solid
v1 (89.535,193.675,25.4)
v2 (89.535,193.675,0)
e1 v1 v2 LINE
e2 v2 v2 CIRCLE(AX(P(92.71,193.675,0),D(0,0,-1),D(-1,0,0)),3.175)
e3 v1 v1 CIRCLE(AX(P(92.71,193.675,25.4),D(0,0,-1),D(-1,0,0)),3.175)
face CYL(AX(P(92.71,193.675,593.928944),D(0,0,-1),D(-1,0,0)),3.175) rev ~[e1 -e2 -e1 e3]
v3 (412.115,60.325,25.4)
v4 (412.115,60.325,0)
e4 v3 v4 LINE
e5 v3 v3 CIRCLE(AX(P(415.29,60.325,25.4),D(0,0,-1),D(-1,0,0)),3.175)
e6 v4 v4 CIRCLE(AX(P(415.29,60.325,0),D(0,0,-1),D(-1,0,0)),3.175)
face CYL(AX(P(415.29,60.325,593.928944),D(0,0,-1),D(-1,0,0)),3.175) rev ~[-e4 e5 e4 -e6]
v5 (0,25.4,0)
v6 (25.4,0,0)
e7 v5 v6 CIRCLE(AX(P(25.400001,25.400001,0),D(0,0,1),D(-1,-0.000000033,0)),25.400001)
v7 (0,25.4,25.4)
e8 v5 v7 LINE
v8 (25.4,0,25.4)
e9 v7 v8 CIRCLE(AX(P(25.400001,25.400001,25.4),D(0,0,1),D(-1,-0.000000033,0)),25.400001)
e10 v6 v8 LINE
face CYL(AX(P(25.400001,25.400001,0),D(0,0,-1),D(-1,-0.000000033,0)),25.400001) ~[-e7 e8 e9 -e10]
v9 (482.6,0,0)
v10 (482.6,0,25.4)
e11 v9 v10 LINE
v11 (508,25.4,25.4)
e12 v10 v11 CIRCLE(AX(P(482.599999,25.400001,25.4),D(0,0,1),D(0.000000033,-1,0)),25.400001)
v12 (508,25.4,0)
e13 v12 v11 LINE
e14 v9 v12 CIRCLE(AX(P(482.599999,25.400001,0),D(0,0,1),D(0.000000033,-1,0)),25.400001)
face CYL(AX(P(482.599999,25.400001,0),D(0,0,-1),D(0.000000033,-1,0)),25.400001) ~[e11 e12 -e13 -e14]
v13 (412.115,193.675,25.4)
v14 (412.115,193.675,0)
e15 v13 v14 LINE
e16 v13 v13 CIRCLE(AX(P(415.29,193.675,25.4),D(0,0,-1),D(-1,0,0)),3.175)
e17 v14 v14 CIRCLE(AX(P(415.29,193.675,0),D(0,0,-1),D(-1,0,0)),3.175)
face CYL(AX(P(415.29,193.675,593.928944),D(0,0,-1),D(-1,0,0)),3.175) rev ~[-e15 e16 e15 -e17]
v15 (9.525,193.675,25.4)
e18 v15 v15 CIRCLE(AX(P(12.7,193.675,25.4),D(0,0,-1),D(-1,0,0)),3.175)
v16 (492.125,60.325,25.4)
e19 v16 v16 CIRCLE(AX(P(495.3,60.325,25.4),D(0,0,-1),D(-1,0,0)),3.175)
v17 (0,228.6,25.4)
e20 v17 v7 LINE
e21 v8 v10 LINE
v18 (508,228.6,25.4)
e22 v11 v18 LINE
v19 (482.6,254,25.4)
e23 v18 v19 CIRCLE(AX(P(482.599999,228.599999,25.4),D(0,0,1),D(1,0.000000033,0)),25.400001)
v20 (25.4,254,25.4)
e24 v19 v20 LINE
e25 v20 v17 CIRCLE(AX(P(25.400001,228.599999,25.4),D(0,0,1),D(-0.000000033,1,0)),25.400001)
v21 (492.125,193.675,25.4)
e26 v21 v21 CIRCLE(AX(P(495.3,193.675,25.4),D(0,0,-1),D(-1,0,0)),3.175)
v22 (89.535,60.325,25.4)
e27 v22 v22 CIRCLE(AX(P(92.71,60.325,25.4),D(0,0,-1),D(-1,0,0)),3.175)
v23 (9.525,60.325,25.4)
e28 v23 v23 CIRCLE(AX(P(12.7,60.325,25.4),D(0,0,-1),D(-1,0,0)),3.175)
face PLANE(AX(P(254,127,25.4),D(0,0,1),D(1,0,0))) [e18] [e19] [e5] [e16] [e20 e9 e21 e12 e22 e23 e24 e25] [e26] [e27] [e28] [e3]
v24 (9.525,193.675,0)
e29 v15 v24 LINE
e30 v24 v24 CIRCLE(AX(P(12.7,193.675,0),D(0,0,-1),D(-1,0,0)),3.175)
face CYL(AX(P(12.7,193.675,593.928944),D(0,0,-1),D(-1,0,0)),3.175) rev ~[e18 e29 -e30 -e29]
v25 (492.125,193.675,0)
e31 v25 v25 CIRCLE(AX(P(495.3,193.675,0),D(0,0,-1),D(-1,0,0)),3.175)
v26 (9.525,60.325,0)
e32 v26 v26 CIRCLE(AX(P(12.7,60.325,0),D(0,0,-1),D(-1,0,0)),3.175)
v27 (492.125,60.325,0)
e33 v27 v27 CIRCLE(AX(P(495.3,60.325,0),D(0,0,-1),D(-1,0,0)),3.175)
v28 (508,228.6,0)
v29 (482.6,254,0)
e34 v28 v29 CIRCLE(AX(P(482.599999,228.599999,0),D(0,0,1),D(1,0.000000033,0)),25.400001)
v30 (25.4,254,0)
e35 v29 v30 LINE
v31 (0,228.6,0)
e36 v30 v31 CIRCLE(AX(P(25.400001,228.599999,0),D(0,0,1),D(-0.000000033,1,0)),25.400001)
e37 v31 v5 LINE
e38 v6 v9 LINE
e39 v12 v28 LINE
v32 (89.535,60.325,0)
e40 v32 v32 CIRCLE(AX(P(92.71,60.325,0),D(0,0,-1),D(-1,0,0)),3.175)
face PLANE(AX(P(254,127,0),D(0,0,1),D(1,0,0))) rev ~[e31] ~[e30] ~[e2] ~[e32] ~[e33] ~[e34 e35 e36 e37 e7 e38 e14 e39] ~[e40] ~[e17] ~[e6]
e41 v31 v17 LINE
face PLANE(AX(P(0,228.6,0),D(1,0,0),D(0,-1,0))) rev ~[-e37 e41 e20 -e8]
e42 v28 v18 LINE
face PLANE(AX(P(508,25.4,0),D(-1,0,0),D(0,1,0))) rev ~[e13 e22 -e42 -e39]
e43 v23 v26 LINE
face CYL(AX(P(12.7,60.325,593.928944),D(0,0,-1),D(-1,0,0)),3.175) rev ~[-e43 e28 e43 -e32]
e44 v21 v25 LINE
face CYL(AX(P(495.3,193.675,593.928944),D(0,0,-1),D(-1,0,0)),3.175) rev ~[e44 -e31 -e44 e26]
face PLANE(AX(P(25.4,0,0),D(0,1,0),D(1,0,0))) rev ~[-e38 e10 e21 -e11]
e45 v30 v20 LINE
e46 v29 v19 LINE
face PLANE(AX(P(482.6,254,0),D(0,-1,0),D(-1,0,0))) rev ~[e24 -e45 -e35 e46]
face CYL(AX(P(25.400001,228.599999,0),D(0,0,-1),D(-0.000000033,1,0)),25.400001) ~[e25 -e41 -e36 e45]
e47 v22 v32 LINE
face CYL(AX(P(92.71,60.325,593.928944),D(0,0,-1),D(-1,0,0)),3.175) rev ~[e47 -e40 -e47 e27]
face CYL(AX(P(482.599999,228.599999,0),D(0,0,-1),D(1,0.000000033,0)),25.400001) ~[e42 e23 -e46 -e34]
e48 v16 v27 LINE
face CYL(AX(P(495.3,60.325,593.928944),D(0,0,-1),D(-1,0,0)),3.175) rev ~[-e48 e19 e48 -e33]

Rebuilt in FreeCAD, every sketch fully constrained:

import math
import FreeCAD as App
import Part
import Sketcher

V = App.Vector
Q = App.Units.Quantity

doc = App.newDocument("Part")
body = doc.addObject("PartDesign::Body", "Body")

# Sketch on XY plane
sketch1 = doc.addObject("Sketcher::SketchObject", "Sketch")
body.addObject(sketch1)
sketch1.AttachmentSupport = (doc.XY_Plane, [""])
sketch1.MapMode = "FlatFace"
sketch1.addGeometry(Part.ArcOfCircle(Part.Circle(V(25.400001, 25.400001, 0), V(0, 0, 1), 25.400001), math.radians(-179.999998), math.radians(-90.000002)), False)
sketch1.addGeometry(Part.LineSegment(V(25.4, 0, 0), V(482.6, 0, 0)), False)
sketch1.addGeometry(Part.ArcOfCircle(Part.Circle(V(482.599999, 25.400001, 0), V(0, 0, 1), 25.400001), math.radians(-89.999998), math.radians(-0.000002)), False)
sketch1.addGeometry(Part.LineSegment(V(508, 25.4, 0), V(508, 228.6, 0)), False)
sketch1.addGeometry(Part.ArcOfCircle(Part.Circle(V(482.599999, 228.599999, 0), V(0, 0, 1), 25.400001), math.radians(0.000002), math.radians(89.999998)), False)
sketch1.addGeometry(Part.LineSegment(V(482.6, 254, 0), V(25.4, 254, 0)), False)
sketch1.addGeometry(Part.ArcOfCircle(Part.Circle(V(25.400001, 228.599999, 0), V(0, 0, 1), 25.400001), math.radians(90.000002), math.radians(179.999998)), False)
sketch1.addGeometry(Part.LineSegment(V(0, 228.6, 0), V(0, 25.4, 0)), False)
sketch1.addConstraint(Sketcher.Constraint("Tangent", 0, 2, 1, 1))
sketch1.addConstraint(Sketcher.Constraint("Tangent", 1, 2, 2, 1))
sketch1.addConstraint(Sketcher.Constraint("Tangent", 2, 2, 3, 1))
sketch1.addConstraint(Sketcher.Constraint("Tangent", 3, 2, 4, 1))
sketch1.addConstraint(Sketcher.Constraint("Tangent", 4, 2, 5, 1))
sketch1.addConstraint(Sketcher.Constraint("Tangent", 5, 2, 6, 1))
sketch1.addConstraint(Sketcher.Constraint("Tangent", 6, 2, 7, 1))
sketch1.addConstraint(Sketcher.Constraint("Tangent", 7, 2, 0, 1))
sketch1.addConstraint(Sketcher.Constraint("Horizontal", 1))
sketch1.addConstraint(Sketcher.Constraint("Vertical", 3))
sketch1.addConstraint(Sketcher.Constraint("Horizontal", 5))
sketch1.addConstraint(Sketcher.Constraint("Vertical", 7))
sketch1.addConstraint(Sketcher.Constraint("Equal", 0, 2))
sketch1.addConstraint(Sketcher.Constraint("Equal", 2, 4))
sketch1.addConstraint(Sketcher.Constraint("Equal", 4, 6))
sketch1.addConstraint(Sketcher.Constraint("PointOnObject", 0, 2, -1))
sketch1.addConstraint(Sketcher.Constraint("PointOnObject", 6, 2, -2))
sketch1.addConstraint(Sketcher.Constraint("Radius", 0, Q("1 in")))
sketch1.addConstraint(Sketcher.Constraint("DistanceX", 1, 1, 1, 2, Q("18 in")))
sketch1.addConstraint(Sketcher.Constraint("DistanceY", 3, 1, 3, 2, Q("8 in")))
pad1 = doc.addObject("PartDesign::Pad", "Pad")
body.addObject(pad1)
pad1.Profile = sketch1
pad1.Length = Q("1 in")

# Sketch on XY plane
sketch2 = doc.addObject("Sketcher::SketchObject", "Sketch001")
body.addObject(sketch2)
sketch2.AttachmentSupport = (doc.XY_Plane, [""])
sketch2.MapMode = "FlatFace"
sketch2.AttachmentOffset = App.Placement(V(0, 0, 1 * 25.4), App.Rotation())
sketch2.addGeometry(Part.Circle(V(12.7, 193.675, 0), V(0, 0, 1), 3.175), False)
sketch2.addGeometry(Part.Circle(V(92.71, 193.675, 0), V(0, 0, 1), 3.175), False)
sketch2.addGeometry(Part.Circle(V(92.71, 60.325, 0), V(0, 0, 1), 3.175), False)
sketch2.addGeometry(Part.Circle(V(12.7, 60.325, 0), V(0, 0, 1), 3.175), False)
sketch2.addGeometry(Part.Circle(V(415.29, 60.325, 0), V(0, 0, 1), 3.175), False)
sketch2.addGeometry(Part.Circle(V(495.3, 60.325, 0), V(0, 0, 1), 3.175), False)
sketch2.addGeometry(Part.Circle(V(495.3, 193.675, 0), V(0, 0, 1), 3.175), False)
sketch2.addGeometry(Part.Circle(V(415.29, 193.675, 0), V(0, 0, 1), 3.175), False)
sketch2.addConstraint(Sketcher.Constraint("Equal", 0, 1))
sketch2.addConstraint(Sketcher.Constraint("Equal", 1, 2))
sketch2.addConstraint(Sketcher.Constraint("Equal", 2, 3))
sketch2.addConstraint(Sketcher.Constraint("Equal", 3, 4))
sketch2.addConstraint(Sketcher.Constraint("Equal", 4, 5))
sketch2.addConstraint(Sketcher.Constraint("Equal", 5, 6))
sketch2.addConstraint(Sketcher.Constraint("Equal", 6, 7))
sketch2.addConstraint(Sketcher.Constraint("Horizontal", 0, 3, 1, 3))
sketch2.addConstraint(Sketcher.Constraint("Horizontal", 2, 3, 3, 3))
sketch2.addConstraint(Sketcher.Constraint("Horizontal", 3, 3, 4, 3))
sketch2.addConstraint(Sketcher.Constraint("Horizontal", 4, 3, 5, 3))
sketch2.addConstraint(Sketcher.Constraint("Horizontal", 1, 3, 6, 3))
sketch2.addConstraint(Sketcher.Constraint("Horizontal", 6, 3, 7, 3))
sketch2.addConstraint(Sketcher.Constraint("Vertical", 1, 3, 2, 3))
sketch2.addConstraint(Sketcher.Constraint("Vertical", 0, 3, 3, 3))
sketch2.addConstraint(Sketcher.Constraint("Vertical", 5, 3, 6, 3))
sketch2.addConstraint(Sketcher.Constraint("Vertical", 4, 3, 7, 3))
sketch2.addConstraint(Sketcher.Constraint("Diameter", 0, Q("0.25 in")))
sketch2.addConstraint(Sketcher.Constraint("DistanceX", 3, 3, 5, 3, Q("19 in")))
sketch2.addConstraint(Sketcher.Constraint("DistanceX", -1, 1, 0, 3, Q("0.5 in")))
sketch2.addConstraint(Sketcher.Constraint("DistanceX", 2, 3, 4, 3, Q("12.7 in")))
sketch2.addConstraint(Sketcher.Constraint("DistanceX", -1, 1, 1, 3, Q("3.65 in")))
sketch2.addConstraint(Sketcher.Constraint("DistanceY", 2, 3, 1, 3, Q("5.25 in")))
sketch2.addConstraint(Sketcher.Constraint("DistanceY", -1, 1, 0, 3, Q("7.625 in")))
doc.recompute()
hole = doc.addObject("PartDesign::Hole", "Hole")
body.addObject(hole)
hole.Profile = sketch2
hole.ThreadType = "None"
hole.Diameter = Q("0.25 in")
hole.DepthType = "ThroughAll"

doc.recompute()
